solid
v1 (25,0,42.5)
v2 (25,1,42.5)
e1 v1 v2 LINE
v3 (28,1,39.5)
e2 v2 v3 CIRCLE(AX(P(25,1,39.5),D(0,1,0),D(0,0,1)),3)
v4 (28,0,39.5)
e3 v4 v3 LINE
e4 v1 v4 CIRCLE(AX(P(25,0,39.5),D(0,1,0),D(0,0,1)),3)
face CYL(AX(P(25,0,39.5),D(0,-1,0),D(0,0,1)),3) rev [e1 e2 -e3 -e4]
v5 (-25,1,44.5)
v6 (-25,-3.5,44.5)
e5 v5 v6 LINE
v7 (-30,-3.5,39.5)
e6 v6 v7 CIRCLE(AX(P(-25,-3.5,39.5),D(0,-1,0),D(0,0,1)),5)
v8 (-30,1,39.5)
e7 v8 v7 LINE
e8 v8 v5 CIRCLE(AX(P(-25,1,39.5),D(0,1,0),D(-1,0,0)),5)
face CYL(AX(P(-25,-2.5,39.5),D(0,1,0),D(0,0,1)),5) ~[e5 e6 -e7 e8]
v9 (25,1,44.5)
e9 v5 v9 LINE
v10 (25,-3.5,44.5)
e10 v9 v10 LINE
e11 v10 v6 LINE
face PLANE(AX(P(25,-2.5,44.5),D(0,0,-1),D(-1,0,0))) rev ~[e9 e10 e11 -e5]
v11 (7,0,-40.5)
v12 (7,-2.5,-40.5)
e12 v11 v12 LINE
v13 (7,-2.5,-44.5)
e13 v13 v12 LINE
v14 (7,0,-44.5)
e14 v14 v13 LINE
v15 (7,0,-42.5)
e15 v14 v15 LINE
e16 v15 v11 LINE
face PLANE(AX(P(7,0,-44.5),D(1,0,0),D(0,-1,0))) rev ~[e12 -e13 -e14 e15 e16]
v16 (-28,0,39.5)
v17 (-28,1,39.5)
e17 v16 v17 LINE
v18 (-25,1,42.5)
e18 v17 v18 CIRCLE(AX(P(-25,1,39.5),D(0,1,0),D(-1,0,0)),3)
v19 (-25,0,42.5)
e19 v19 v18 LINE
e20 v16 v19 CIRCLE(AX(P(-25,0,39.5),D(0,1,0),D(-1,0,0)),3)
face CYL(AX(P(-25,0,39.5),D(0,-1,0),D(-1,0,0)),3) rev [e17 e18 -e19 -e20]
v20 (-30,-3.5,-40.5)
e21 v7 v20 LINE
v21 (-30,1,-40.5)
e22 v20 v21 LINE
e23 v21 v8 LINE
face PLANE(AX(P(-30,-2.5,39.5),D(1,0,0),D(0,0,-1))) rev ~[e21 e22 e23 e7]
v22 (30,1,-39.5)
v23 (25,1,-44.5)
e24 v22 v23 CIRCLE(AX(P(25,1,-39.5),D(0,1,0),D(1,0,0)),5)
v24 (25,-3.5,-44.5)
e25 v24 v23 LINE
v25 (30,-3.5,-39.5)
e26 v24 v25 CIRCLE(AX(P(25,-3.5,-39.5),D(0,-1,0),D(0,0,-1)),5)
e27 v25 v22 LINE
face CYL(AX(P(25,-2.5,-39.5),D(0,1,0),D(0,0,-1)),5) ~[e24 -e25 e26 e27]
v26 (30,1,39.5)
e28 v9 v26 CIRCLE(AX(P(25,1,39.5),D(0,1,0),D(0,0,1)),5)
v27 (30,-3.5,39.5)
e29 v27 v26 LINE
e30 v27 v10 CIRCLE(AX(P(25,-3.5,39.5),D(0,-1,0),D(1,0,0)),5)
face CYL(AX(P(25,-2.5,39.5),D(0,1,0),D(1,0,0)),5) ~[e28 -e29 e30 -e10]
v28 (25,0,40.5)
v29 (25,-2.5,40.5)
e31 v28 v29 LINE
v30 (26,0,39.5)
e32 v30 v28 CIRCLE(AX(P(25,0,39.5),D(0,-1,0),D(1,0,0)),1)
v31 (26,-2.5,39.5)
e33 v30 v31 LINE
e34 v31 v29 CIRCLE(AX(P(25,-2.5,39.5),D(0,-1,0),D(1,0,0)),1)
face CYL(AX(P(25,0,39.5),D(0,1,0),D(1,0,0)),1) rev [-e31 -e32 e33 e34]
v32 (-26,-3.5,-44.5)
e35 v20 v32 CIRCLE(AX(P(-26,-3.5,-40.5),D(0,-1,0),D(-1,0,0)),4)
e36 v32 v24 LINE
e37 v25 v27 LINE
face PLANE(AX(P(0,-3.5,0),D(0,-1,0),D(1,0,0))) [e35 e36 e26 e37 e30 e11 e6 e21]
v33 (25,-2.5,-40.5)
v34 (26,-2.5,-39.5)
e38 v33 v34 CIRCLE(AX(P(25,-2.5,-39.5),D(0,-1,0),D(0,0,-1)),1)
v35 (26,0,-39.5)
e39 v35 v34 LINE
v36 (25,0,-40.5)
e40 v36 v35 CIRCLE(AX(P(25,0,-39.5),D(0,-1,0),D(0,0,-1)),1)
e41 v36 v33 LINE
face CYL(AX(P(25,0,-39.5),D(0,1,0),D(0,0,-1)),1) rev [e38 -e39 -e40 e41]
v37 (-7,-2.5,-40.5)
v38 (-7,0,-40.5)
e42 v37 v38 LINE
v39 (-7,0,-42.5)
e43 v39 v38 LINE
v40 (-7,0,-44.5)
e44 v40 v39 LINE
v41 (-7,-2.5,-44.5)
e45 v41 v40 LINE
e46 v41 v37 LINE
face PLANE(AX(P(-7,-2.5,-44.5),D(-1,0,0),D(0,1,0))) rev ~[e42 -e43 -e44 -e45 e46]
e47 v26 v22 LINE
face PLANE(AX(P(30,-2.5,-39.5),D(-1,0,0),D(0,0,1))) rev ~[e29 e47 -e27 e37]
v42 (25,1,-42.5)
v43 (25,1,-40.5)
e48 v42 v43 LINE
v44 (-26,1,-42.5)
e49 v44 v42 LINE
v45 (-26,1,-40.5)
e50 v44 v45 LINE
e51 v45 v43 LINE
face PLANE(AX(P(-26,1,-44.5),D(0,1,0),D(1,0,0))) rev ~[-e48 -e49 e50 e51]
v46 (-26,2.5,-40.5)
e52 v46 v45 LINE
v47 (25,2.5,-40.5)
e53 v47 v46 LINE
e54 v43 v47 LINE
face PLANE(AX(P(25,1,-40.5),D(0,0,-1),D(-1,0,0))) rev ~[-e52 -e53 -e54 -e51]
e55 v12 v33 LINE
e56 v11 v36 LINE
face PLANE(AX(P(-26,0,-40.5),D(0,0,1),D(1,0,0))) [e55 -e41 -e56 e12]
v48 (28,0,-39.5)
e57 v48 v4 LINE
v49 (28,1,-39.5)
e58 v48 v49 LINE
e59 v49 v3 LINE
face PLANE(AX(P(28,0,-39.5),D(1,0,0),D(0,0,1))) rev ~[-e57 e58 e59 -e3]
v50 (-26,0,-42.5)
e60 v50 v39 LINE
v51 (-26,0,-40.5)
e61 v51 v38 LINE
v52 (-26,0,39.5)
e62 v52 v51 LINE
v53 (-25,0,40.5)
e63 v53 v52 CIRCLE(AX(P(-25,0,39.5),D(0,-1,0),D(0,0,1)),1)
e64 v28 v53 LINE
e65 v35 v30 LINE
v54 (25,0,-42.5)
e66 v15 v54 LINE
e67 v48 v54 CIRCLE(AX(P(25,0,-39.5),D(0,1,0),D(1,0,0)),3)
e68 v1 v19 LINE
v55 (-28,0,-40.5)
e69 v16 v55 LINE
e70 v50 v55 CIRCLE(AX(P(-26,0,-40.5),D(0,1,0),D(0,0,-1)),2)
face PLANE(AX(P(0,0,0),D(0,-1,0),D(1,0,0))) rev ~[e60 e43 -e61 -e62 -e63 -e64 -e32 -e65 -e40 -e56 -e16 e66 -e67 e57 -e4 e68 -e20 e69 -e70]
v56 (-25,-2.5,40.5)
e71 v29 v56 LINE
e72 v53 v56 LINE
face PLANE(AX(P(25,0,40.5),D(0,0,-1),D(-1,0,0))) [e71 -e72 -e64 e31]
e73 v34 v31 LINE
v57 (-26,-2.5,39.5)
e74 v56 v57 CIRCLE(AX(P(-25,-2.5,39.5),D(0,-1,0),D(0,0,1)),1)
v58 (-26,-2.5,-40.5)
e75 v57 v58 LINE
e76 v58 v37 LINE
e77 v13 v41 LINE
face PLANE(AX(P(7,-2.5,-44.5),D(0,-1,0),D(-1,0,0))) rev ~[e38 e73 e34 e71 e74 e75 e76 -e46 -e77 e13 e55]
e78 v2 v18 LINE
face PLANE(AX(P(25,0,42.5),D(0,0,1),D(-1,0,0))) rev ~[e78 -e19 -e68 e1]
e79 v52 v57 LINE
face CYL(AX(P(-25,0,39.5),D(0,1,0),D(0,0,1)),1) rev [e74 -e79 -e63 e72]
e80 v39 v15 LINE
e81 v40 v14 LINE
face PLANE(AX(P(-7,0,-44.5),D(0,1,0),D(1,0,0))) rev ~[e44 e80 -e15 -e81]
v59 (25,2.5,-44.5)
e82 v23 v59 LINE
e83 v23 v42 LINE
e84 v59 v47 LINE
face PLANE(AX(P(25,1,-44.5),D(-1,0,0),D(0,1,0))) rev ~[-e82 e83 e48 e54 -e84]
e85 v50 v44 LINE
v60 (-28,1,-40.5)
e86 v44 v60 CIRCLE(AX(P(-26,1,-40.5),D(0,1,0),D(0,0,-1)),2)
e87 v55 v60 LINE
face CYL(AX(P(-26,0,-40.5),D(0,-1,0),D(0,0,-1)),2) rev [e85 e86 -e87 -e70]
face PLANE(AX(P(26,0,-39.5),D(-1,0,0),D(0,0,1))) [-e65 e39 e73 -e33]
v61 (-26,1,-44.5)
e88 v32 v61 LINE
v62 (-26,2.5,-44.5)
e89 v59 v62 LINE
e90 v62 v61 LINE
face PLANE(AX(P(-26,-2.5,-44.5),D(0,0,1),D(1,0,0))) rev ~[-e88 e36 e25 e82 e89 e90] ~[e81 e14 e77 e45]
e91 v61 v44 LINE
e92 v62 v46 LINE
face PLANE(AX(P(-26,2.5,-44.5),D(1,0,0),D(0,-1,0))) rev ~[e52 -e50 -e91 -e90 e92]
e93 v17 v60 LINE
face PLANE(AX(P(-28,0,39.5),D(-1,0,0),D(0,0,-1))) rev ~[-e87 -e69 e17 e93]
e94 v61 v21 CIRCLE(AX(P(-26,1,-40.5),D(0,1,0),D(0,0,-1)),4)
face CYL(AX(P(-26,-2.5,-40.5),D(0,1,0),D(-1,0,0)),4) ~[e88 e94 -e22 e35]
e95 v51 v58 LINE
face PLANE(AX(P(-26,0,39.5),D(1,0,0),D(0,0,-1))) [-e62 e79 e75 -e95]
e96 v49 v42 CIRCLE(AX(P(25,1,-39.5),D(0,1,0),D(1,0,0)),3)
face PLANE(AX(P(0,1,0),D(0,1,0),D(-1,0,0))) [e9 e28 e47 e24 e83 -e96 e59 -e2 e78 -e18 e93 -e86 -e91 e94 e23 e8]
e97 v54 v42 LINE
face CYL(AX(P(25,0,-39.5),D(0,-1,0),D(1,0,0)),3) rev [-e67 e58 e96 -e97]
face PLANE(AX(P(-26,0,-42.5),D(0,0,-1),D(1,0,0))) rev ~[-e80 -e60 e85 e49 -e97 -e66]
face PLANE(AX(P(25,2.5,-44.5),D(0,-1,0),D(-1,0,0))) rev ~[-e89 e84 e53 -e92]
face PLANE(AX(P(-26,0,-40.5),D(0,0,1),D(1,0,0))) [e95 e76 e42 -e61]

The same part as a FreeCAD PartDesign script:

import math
import FreeCAD as App
import Part
import Sketcher

V = App.Vector

doc = App.newDocument("Part")
body = doc.addObject("PartDesign::Body", "Body")

# Sketch on XZ plane
sketch1 = body.newObject("Sketcher::SketchObject", "Sketch")
sketch1.AttachmentSupport = (doc.getObject("XZ_Plane"), [""])
sketch1.MapMode = "FlatFace"
sketch1.addGeometry(Part.ArcOfCircle(Part.Circle(V(-26, -40.5, 0), V(0, 0, 1), 4), math.radians(180), math.radians(270)), False)
sketch1.addGeometry(Part.LineSegment(V(-30, -40.5, 0), V(-30, 39.5, 0)), False)
sketch1.addGeometry(Part.ArcOfCircle(Part.Circle(V(-25, 39.5, 0), V(0, 0, 1), 5), math.radians(90), math.radians(180)), False)
sketch1.addGeometry(Part.LineSegment(V(-25, 44.5, 0), V(25, 44.5, 0)), False)
sketch1.addGeometry(Part.ArcOfCircle(Part.Circle(V(25, 39.5, 0), V(0, 0, 1), 5), math.radians(0), math.radians(90)), False)
sketch1.addGeometry(Part.LineSegment(V(30, 39.5, 0), V(30, -39.5, 0)), False)
sketch1.addGeometry(Part.ArcOfCircle(Part.Circle(V(25, -39.5, 0), V(0, 0, 1), 5), math.radians(-90), math.radians(0)), False)
sketch1.addGeometry(Part.LineSegment(V(25, -44.5, 0), V(-26, -44.5, 0)), False)
sketch1.addGeometry(Part.ArcOfCircle(Part.Circle(V(25, 39.5, 0), V(0, 0, 1), 3), math.radians(0), math.radians(90)), False)
sketch1.addGeometry(Part.LineSegment(V(25, 42.5, 0), V(-25, 42.5, 0)), False)
sketch1.addGeometry(Part.ArcOfCircle(Part.Circle(V(-25, 39.5, 0), V(0, 0, 1), 3), math.radians(90), math.radians(180)), False)
sketch1.addGeometry(Part.LineSegment(V(-28, 39.5, 0), V(-28, -40.5, 0)), False)
sketch1.addGeometry(Part.ArcOfCircle(Part.Circle(V(-26, -40.5, 0), V(0, 0, 1), 2), math.radians(180), math.radians(270)), False)
sketch1.addGeometry(Part.LineSegment(V(-26, -42.5, 0), V(25, -42.5, 0)), False)
sketch1.addGeometry(Part.ArcOfCircle(Part.Circle(V(25, -39.5, 0), V(0, 0, 1), 3), math.radians(-90), math.radians(0)), False)
sketch1.addGeometry(Part.LineSegment(V(28, -39.5, 0), V(28, 39.5, 0)), False)
sketch1.addConstraint(Sketcher.Constraint("Tangent", 0, 1, 1, 1))
sketch1.addConstraint(Sketcher.Constraint("Tangent", 1, 2, 2, 2))
sketch1.addConstraint(Sketcher.Constraint("Tangent", 2, 1, 3, 1))
sketch1.addConstraint(Sketcher.Constraint("Tangent", 3, 2, 4, 2))
sketch1.addConstraint(Sketcher.Constraint("Tangent", 4, 1, 5, 1))
sketch1.addConstraint(Sketcher.Constraint("Tangent", 5, 2, 6, 2))
sketch1.addConstraint(Sketcher.Constraint("Tangent", 6, 1, 7, 1))
sketch1.addConstraint(Sketcher.Constraint("Tangent", 7, 2, 0, 2))
sketch1.addConstraint(Sketcher.Constraint("Tangent", 8, 2, 9, 1))
sketch1.addConstraint(Sketcher.Constraint("Tangent", 9, 2, 10, 1))
sketch1.addConstraint(Sketcher.Constraint("Tangent", 10, 2, 11, 1))
sketch1.addConstraint(Sketcher.Constraint("Tangent", 11, 2, 12, 1))
sketch1.addConstraint(Sketcher.Constraint("Tangent", 12, 2, 13, 1))
sketch1.addConstraint(Sketcher.Constraint("Tangent", 13, 2, 14, 1))
sketch1.addConstraint(Sketcher.Constraint("Tangent", 14, 2, 15, 1))
sketch1.addConstraint(Sketcher.Constraint("Tangent", 15, 2, 8, 1))
sketch1.addConstraint(Sketcher.Constraint("Vertical", 1))
sketch1.addConstraint(Sketcher.Constraint("Horizontal", 3))
sketch1.addConstraint(Sketcher.Constraint("Vertical", 5))
sketch1.addConstraint(Sketcher.Constraint("Horizontal", 7))
sketch1.addConstraint(Sketcher.Constraint("Horizontal", 9))
sketch1.addConstraint(Sketcher.Constraint("Vertical", 11))
sketch1.addConstraint(Sketcher.Constraint("Horizontal", 13))
sketch1.addConstraint(Sketcher.Constraint("Vertical", 15))
sketch1.addConstraint(Sketcher.Constraint("Coincident", 8, 3, 4, 3))
sketch1.addConstraint(Sketcher.Constraint("Coincident", 10, 3, 2, 3))
sketch1.addConstraint(Sketcher.Constraint("Coincident", 12, 3, 0, 3))
sketch1.addConstraint(Sketcher.Constraint("Equal", 2, 4))
sketch1.addConstraint(Sketcher.Constraint("Equal", 4, 6))
sketch1.addConstraint(Sketcher.Constraint("Equal", 10, 14))
sketch1.addConstraint(Sketcher.Constraint("Symmetric", 2, 3, 6, 3, -1, 1))
sketch1.addConstraint(Sketcher.Constraint("Radius", 8, 3.0))
sketch1.addConstraint(Sketcher.Constraint("Radius", 12, 2.0))
sketch1.addConstraint(Sketcher.Constraint("Radius", 0, 4.0))
sketch1.addConstraint(Sketcher.Constraint("DistanceX", 0, 3, 5, 2, 56.0))
sketch1.addConstraint(Sketcher.Constraint("DistanceY", 1, 1, 1, 2, 80.0))
pad1 = body.newObject("PartDesign::Pad", "Pad")
pad1.Profile = sketch1
pad1.Length = 1
pad1.Reversed = True

# Sketch on XZ plane
sketch2 = body.newObject("Sketcher::SketchObject", "Sketch001")
sketch2.AttachmentSupport = (doc.getObject("XZ_Plane"), [""])
sketch2.MapMode = "FlatFace"
sketch2.addGeometry(Part.LineSegment(V(25, 44.5, 0), V(-25, 44.5, 0)), False)
sketch2.addGeometry(Part.ArcOfCircle(Part.Circle(V(-25, 39.5, 0), V(0, 0, 1), 5), math.radians(90), math.radians(180)), False)
sketch2.addGeometry(Part.LineSegment(V(-30, 39.5, 0), V(-30, -40.5, 0)), False)
sketch2.addGeometry(Part.ArcOfCircle(Part.Circle(V(-26, -40.5, 0), V(0, 0, 1), 4), math.radians(180), math.radians(270)), False)
sketch2.addGeometry(Part.LineSegment(V(-26, -44.5, 0), V(25, -44.5, 0)), False)
sketch2.addGeometry(Part.ArcOfCircle(Part.Circle(V(25, -39.5, 0), V(0, 0, 1), 5), math.radians(-90), math.radians(0)), False)
sketch2.addGeometry(Part.LineSegment(V(30, -39.5, 0), V(30, 39.5, 0)), False)
sketch2.addGeometry(Part.ArcOfCircle(Part.Circle(V(25, 39.5, 0), V(0, 0, 1), 5), math.radians(0), math.radians(90)), False)
sketch2.addGeometry(Part.LineSegment(V(-25, 40.5, 0), V(25, 40.5, 0)), False)
sketch2.addGeometry(Part.ArcOfCircle(Part.Circle(V(25, 39.5, 0), V(0, 0, 1), 1), math.radians(0), math.radians(90)), False)
sketch2.addGeometry(Part.LineSegment(V(26, 39.5, 0), V(26, -39.5, 0)), False)
sketch2.addGeometry(Part.ArcOfCircle(Part.Circle(V(25, -39.5, 0), V(0, 0, 1), 1), math.radians(-90), math.radians(0)), False)
sketch2.addGeometry(Part.LineSegment(V(25, -40.5, 0), V(-26, -40.5, 0)), False)
sketch2.addGeometry(Part.LineSegment(V(-26, -40.5, 0), V(-26, 39.5, 0)), False)
sketch2.addGeometry(Part.ArcOfCircle(Part.Circle(V(-25, 39.5, 0), V(0, 0, 1), 1), math.radians(90), math.radians(180)), False)
sketch2.addConstraint(Sketcher.Constraint("Tangent", 0, 2, 1, 1))
sketch2.addConstraint(Sketcher.Constraint("Tangent", 1, 2, 2, 1))
sketch2.addConstraint(Sketcher.Constraint("Tangent", 2, 2, 3, 1))
sketch2.addConstraint(Sketcher.Constraint("Tangent", 3, 2, 4, 1))
sketch2.addConstraint(Sketcher.Constraint("Tangent", 4, 2, 5, 1))
sketch2.addConstraint(Sketcher.Constraint("Tangent", 5, 2, 6, 1))
sketch2.addConstraint(Sketcher.Constraint("Tangent", 6, 2, 7, 1))
sketch2.addConstraint(Sketcher.Constraint("Tangent", 7, 2, 0, 1))
sketch2.addConstraint(Sketcher.Constraint("Tangent", 8, 2, 9, 2))
sketch2.addConstraint(Sketcher.Constraint("Tangent", 9, 1, 10, 1))
sketch2.addConstraint(Sketcher.Constraint("Tangent", 10, 2, 11, 2))
sketch2.addConstraint(Sketcher.Constraint("Tangent", 11, 1, 12, 1))
sketch2.addConstraint(Sketcher.Constraint("Coincident", 12, 2, 13, 1))
sketch2.addConstraint(Sketcher.Constraint("Tangent", 13, 2, 14, 2))
sketch2.addConstraint(Sketcher.Constraint("Tangent", 14, 1, 8, 1))
sketch2.addConstraint(Sketcher.Constraint("Horizontal", 0))
sketch2.addConstraint(Sketcher.Constraint("Vertical", 2))
sketch2.addConstraint(Sketcher.Constraint("Horizontal", 4))
sketch2.addConstraint(Sketcher.Constraint("Vertical", 6))
sketch2.addConstraint(Sketcher.Constraint("Horizontal", 8))
sketch2.addConstraint(Sketcher.Constraint("Vertical", 10))
sketch2.addConstraint(Sketcher.Constraint("Horizontal", 12))
sketch2.addConstraint(Sketcher.Constraint("Vertical", 13))
sketch2.addConstraint(Sketcher.Constraint("Coincident", 9, 3, 7, 3))
sketch2.addConstraint(Sketcher.Constraint("Coincident", 11, 3, 5, 3))
sketch2.addConstraint(Sketcher.Constraint("Coincident", 14, 3, 1, 3))
sketch2.addConstraint(Sketcher.Constraint("Equal", 1, 5))
sketch2.addConstraint(Sketcher.Constraint("Equal", 5, 7))
sketch2.addConstraint(Sketcher.Constraint("Symmetric", 1, 3, 5, 3, -1, 1))
sketch2.addConstraint(Sketcher.Constraint("Horizontal", 2, 2, 11, 1))
sketch2.addConstraint(Sketcher.Constraint("Radius", 3, 4.0))
sketch2.addConstraint(Sketcher.Constraint("Radius", 1, 5.0))
sketch2.addConstraint(Sketcher.Constraint("DistanceX", 0, 2, 0, 1, 50.0))
sketch2.addConstraint(Sketcher.Constraint("DistanceY", 2, 2, 2, 1, 80.0))
pad2 = body.newObject("PartDesign::Pad", "Pad001")
pad2.Profile = sketch2
pad2.Length = 2.5

# Sketch on XY plane
sketch3 = body.newObject("Sketcher::SketchObject", "Sketch002")
sketch3.AttachmentSupport = (doc.getObject("XY_Plane"), [""])
sketch3.MapMode = "FlatFace"
sketch3.AttachmentOffset = App.Placement(V(0, 0, -44.5), App.Rotation())
sketch3.addGeometry(Part.LineSegment(V(25, 1, 0), V(-26, 1, 0)), False)
sketch3.addGeometry(Part.LineSegment(V(-26, 1, 0), V(-26, 2.5, 0)), False)
sketch3.addGeometry(Part.LineSegment(V(-26, 2.5, 0), V(25, 2.5, 0)), False)
sketch3.addGeometry(Part.LineSegment(V(25, 2.5, 0), V(25, 1, 0)), False)
sketch3.addConstraint(Sketcher.Constraint("Coincident", 0, 2, 1, 1))
sketch3.addConstraint(Sketcher.Constraint("Coincident", 1, 2, 2, 1))
sketch3.addConstraint(Sketcher.Constraint("Coincident", 2, 2, 3, 1))
sketch3.addConstraint(Sketcher.Constraint("Coincident", 3, 2, 0, 1))
sketch3.addConstraint(Sketcher.Constraint("Horizontal", 0))
sketch3.addConstraint(Sketcher.Constraint("Vertical", 1))
sketch3.addConstraint(Sketcher.Constraint("Horizontal", 2))
sketch3.addConstraint(Sketcher.Constraint("Vertical", 3))
sketch3.addConstraint(Sketcher.Constraint("DistanceY", 1, 1, 1, 2, 1.5))
sketch3.addConstraint(Sketcher.Constraint("DistanceX", 0, 2, 0, 1, 51.0))
sketch3.addConstraint(Sketcher.Constraint("DistanceX", 0, 2, -1, 1, 26.0))
sketch3.addConstraint(Sketcher.Constraint("DistanceY", -1, 1, 0, 2, 1.0))
pad3 = body.newObject("PartDesign::Pad", "Pad002")
pad3.Profile = sketch3
pad3.Length = 4

# Sketch on XZ plane
sketch4 = body.newObject("Sketcher::SketchObject", "Sketch003")
sketch4.AttachmentSupport = (doc.getObject("XZ_Plane"), [""])
sketch4.MapMode = "FlatFace"
sketch4.AttachmentOffset = App.Placement(V(0, 0, 2.5), App.Rotation())
sketch4.addGeometry(Part.ArcOfCircle(Part.Circle(V(25, 39.5, 0), V(0, 0, 1), 5), math.radians(0), math.radians(90)), False)
sketch4.addGeometry(Part.LineSegment(V(25, 44.5, 0), V(-25, 44.5, 0)), False)
sketch4.addGeometry(Part.ArcOfCircle(Part.Circle(V(-25, 39.5, 0), V(0, 0, 1), 5), math.radians(90), math.radians(180)), False)
sketch4.addGeometry(Part.LineSegment(V(-30, 39.5, 0), V(-30, -40.5, 0)), False)
sketch4.addGeometry(Part.ArcOfCircle(Part.Circle(V(-26, -40.5, 0), V(0, 0, 1), 4), math.radians(180), math.radians(270)), False)
sketch4.addGeometry(Part.LineSegment(V(-26, -44.5, 0), V(25, -44.5, 0)), False)
sketch4.addGeometry(Part.ArcOfCircle(Part.Circle(V(25, -39.5, 0), V(0, 0, 1), 5), math.radians(-90), math.radians(0)), False)
sketch4.addGeometry(Part.LineSegment(V(30, -39.5, 0), V(30, 39.5, 0)), False)
sketch4.addConstraint(Sketcher.Constraint("Tangent", 0, 2, 1, 1))
sketch4.addConstraint(Sketcher.Constraint("Tangent", 1, 2, 2, 1))
sketch4.addConstraint(Sketcher.Constraint("Tangent", 2, 2, 3, 1))
sketch4.addConstraint(Sketcher.Constraint("Tangent", 3, 2, 4, 1))
sketch4.addConstraint(Sketcher.Constraint("Tangent", 4, 2, 5, 1))
sketch4.addConstraint(Sketcher.Constraint("Tangent", 5, 2, 6, 1))
sketch4.addConstraint(Sketcher.Constraint("Tangent", 6, 2, 7, 1))
sketch4.addConstraint(Sketcher.Constraint("Tangent", 7, 2, 0, 1))
sketch4.addConstraint(Sketcher.Constraint("Horizontal", 1))
sketch4.addConstraint(Sketcher.Constraint("Vertical", 3))
sketch4.addConstraint(Sketcher.Constraint("Horizontal", 5))
sketch4.addConstraint(Sketcher.Constraint("Vertical", 7))
sketch4.addConstraint(Sketcher.Constraint("Equal", 0, 2))
sketch4.addConstraint(Sketcher.Constraint("Equal", 2, 6))
sketch4.addConstraint(Sketcher.Constraint("Symmetric", 2, 3, 6, 3, -1, 1))
sketch4.addConstraint(Sketcher.Constraint("Radius", 0, 5.0))
sketch4.addConstraint(Sketcher.Constraint("Radius", 4, 4.0))
sketch4.addConstraint(Sketcher.Constraint("DistanceX", 1, 2, 1, 1, 50.0))
sketch4.addConstraint(Sketcher.Constraint("DistanceY", 3, 2, 3, 1, 80.0))
pad4 = body.newObject("PartDesign::Pad", "Pad003")
pad4.Profile = sketch4
pad4.Length = 1

# Sketch on XY plane
sketch5 = body.newObject("Sketcher::SketchObject", "Sketch004")
sketch5.AttachmentSupport = (doc.getObject("XY_Plane"), [""])
sketch5.MapMode = "FlatFace"
sketch5.AttachmentOffset = App.Placement(V(0, 0, -44.5), App.Rotation())
sketch5.addGeometry(Part.LineSegment(V(7, 0, 0), V(7, -2.5, 0)), False)
sketch5.addGeometry(Part.LineSegment(V(7, -2.5, 0), V(-7, -2.5, 0)), False)
sketch5.addGeometry(Part.LineSegment(V(-7, -2.5, 0), V(-7, 0, 0)), False)
sketch5.addGeometry(Part.LineSegment(V(-7, 0, 0), V(7, 0, 0)), False)
sketch5.addConstraint(Sketcher.Constraint("Coincident", 0, 2, 1, 1))
sketch5.addConstraint(Sketcher.Constraint("Coincident", 1, 2, 2, 1))
sketch5.addConstraint(Sketcher.Constraint("Coincident", 2, 2, 3, 1))
sketch5.addConstraint(Sketcher.Constraint("Coincident", 3, 2, 0, 1))
sketch5.addConstraint(Sketcher.Constraint("Vertical", 0))
sketch5.addConstraint(Sketcher.Constraint("Horizontal", 1))
sketch5.addConstraint(Sketcher.Constraint("Vertical", 2))
sketch5.addConstraint(Sketcher.Constraint("Horizontal", 3))
sketch5.addConstraint(Sketcher.Constraint("Symmetric", 2, 2, 3, 2, -1, 1))
sketch5.addConstraint(Sketcher.Constraint("DistanceX", 1, 2, 1, 1, 14.0))
sketch5.addConstraint(Sketcher.Constraint("DistanceY", 0, 2, 0, 1, 2.5))
pocket1 = body.newObject("PartDesign::Pocket", "Pocket")
pocket1.Profile = sketch5
pocket1.Length = 4
pocket1.Reversed = True

doc.recompute()
